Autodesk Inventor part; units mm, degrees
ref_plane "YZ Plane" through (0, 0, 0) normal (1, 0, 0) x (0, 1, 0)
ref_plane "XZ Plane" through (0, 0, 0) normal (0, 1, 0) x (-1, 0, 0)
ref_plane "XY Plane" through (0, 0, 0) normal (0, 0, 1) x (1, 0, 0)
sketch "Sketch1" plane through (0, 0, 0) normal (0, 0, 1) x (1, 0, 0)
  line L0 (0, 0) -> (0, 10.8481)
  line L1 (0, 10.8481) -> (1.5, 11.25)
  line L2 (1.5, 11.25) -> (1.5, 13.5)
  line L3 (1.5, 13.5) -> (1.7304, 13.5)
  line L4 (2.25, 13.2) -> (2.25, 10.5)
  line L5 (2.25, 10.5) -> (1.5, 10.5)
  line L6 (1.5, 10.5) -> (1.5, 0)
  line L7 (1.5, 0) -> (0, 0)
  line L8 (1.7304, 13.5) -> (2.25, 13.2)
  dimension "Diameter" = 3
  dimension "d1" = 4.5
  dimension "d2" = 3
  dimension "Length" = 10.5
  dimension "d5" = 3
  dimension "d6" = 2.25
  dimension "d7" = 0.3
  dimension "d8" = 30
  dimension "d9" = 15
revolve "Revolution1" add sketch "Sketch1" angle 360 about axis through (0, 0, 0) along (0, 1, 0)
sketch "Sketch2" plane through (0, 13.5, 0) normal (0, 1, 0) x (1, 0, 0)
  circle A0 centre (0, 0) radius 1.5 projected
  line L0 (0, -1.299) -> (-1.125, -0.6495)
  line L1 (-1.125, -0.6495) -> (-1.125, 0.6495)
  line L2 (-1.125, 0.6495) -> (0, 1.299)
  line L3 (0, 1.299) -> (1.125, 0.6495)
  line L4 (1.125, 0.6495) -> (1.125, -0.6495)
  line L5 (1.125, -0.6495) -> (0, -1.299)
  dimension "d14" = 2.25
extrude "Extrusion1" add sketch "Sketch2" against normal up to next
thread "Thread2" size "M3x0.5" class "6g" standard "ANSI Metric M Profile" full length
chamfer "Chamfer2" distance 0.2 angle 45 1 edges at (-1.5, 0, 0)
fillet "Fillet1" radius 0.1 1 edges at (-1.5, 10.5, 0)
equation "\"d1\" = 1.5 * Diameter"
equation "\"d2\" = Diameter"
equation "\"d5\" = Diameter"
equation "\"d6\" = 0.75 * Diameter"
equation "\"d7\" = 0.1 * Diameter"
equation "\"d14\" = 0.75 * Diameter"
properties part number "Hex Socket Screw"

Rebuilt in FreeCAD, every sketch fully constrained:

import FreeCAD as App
import Part
import Sketcher
Q = App.Units.Quantity


def edges_at(feature, points):
    """Names of the edges that pass closest to the given points."""
    edges = feature.Shape.Edges
    near = lambda p: min(range(len(edges)), key=lambda i: edges[i].distToShape(Part.Vertex(*p))[0])
    return sorted({f"Edge{near(p) + 1}" for p in points})

doc = App.newDocument("Part")
body = doc.addObject("PartDesign::Body", "Body")

sketch1 = body.newObject("Sketcher::SketchObject", "Sketch")
sketch1.AttachmentSupport = (doc.getObject("XY_Plane"), [""])
sketch1.MapMode = "FlatFace"
sketch1.addGeometry([
    Part.LineSegment(App.Vector(0, 10.8481, 0), App.Vector(0, 0, 0)),
    Part.LineSegment(App.Vector(0, 0, 0), App.Vector(1.5, 0, 0)),
    Part.LineSegment(App.Vector(1.5, 0, 0), App.Vector(1.5, 10.5, 0)),
    Part.LineSegment(App.Vector(1.5, 10.5, 0), App.Vector(2.25, 10.5, 0)),
    Part.LineSegment(App.Vector(2.25, 10.5, 0), App.Vector(2.25, 13.2, 0)),
    Part.LineSegment(App.Vector(2.25, 13.2, 0), App.Vector(1.7304, 13.5, 0)),
    Part.LineSegment(App.Vector(1.7304, 13.5, 0), App.Vector(1.5, 13.5, 0)),
    Part.LineSegment(App.Vector(1.5, 13.5, 0), App.Vector(1.5, 11.25, 0)),
    Part.LineSegment(App.Vector(1.5, 11.25, 0), App.Vector(0, 10.8481, 0)),
], False)
sketch1.addConstraint([
    Sketcher.Constraint("Coincident", 0, 2, 1, 1),
    Sketcher.Constraint("Coincident", 1, 2, 2, 1),
    Sketcher.Constraint("Coincident", 2, 2, 3, 1),
    Sketcher.Constraint("Coincident", 3, 2, 4, 1),
    Sketcher.Constraint("Coincident", 4, 2, 5, 1),
    Sketcher.Constraint("Coincident", 5, 2, 6, 1),
    Sketcher.Constraint("Coincident", 6, 2, 7, 1),
    Sketcher.Constraint("Coincident", 7, 2, 8, 1),
    Sketcher.Constraint("Coincident", 8, 2, 0, 1),
    Sketcher.Constraint("Vertical", 0),
    Sketcher.Constraint("Horizontal", 1),
    Sketcher.Constraint("Vertical", 2),
    Sketcher.Constraint("Horizontal", 3),
    Sketcher.Constraint("Vertical", 4),
    Sketcher.Constraint("Horizontal", 6),
    Sketcher.Constraint("Vertical", 7),
    Sketcher.Constraint("Coincident", 0, 2, -1, 1),
    Sketcher.Constraint("Vertical", 2, 2, 6, 2),
    Sketcher.Constraint("DistanceY", 2, 1, 2, 2, Q("10.5 mm")),
    Sketcher.Constraint("DistanceY", 2, 2, 5, 2, Q("3 mm")),
    Sketcher.Constraint("DistanceY", 7, 2, 7, 1, Q("2.25 mm")),
    Sketcher.Constraint("DistanceY", 4, 2, 5, 2, Q("0.3 mm")),
    Sketcher.Constraint("DistanceX", -1, 1, 3, 2, Q("2.25 mm")),
    Sketcher.Constraint("Angle", 5, Q("149.9993 deg")),
    Sketcher.Constraint("Angle", 8, Q("-165.0008 deg")),
    Sketcher.Constraint("DistanceX", 1, 1, 1, 2, Q("1.5 mm")),
])
revolution = body.newObject("PartDesign::Revolution", "Revolution")
revolution.Profile = sketch1
revolution.ReferenceAxis = (sketch1, ["V_Axis"])
revolution.Angle = 360

sketch2 = body.newObject("Sketcher::SketchObject", "Sketch001")
sketch2.AttachmentSupport = (doc.getObject("XZ_Plane"), [""])
sketch2.MapMode = "FlatFace"
sketch2.AttachmentOffset = App.Placement(App.Vector(0, 0, -13.5), App.Rotation())
sketch2.addGeometry([
    Part.Circle(App.Vector(0, 0, 0), App.Vector(0, 0, 1), 1.5),
    Part.LineSegment(App.Vector(1.125, 0.6495, 0), App.Vector(0, 1.299, 0)),
    Part.LineSegment(App.Vector(0, 1.299, 0), App.Vector(-1.125, 0.6495, 0)),
    Part.LineSegment(App.Vector(-1.125, 0.6495, 0), App.Vector(-1.125, -0.6495, 0)),
    Part.LineSegment(App.Vector(-1.125, -0.6495, 0), App.Vector(0, -1.299, 0)),
    Part.LineSegment(App.Vector(0, -1.299, 0), App.Vector(1.125, -0.6495, 0)),
    Part.LineSegment(App.Vector(1.125, -0.6495, 0), App.Vector(1.125, 0.6495, 0)),
], False)
sketch2.addConstraint([
    Sketcher.Constraint("Coincident", 1, 2, 2, 1),
    Sketcher.Constraint("Coincident", 2, 2, 3, 1),
    Sketcher.Constraint("Coincident", 3, 2, 4, 1),
    Sketcher.Constraint("Coincident", 4, 2, 5, 1),
    Sketcher.Constraint("Coincident", 5, 2, 6, 1),
    Sketcher.Constraint("Coincident", 6, 2, 1, 1),
    Sketcher.Constraint("Vertical", 3),
    Sketcher.Constraint("Vertical", 6),
    Sketcher.Constraint("Coincident", 0, 3, -1, 1),
    Sketcher.Constraint("Symmetric", 1, 2, 4, 2, -1, 1),
    Sketcher.Constraint("Symmetric", 2, 2, 5, 2, -1, 1),
    Sketcher.Constraint("PointOnObject", 1, 2, -2),
    Sketcher.Constraint("Parallel", 1, 4),
    Sketcher.Constraint("Horizontal", 3, 2, 5, 2),
    Sketcher.Constraint("Diameter", 0, Q("3 mm")),
    Sketcher.Constraint("Angle", 1, Q("150.0007 deg")),
    Sketcher.Constraint("DistanceX", 3, 2, 5, 2, Q("2.25 mm")),
    Sketcher.Constraint("DistanceY", 3, 2, 3, 1, Q("1.299 mm")),
])
pad1 = body.newObject("PartDesign::Pad", "Pad")
pad1.Profile = sketch2
pad1.Type = "UpToFirst"
doc.recompute()

chamfer = body.newObject("PartDesign::Chamfer", "Chamfer")
chamfer.Base = (pad1, edges_at(pad1, [(-1.5, 0, 0)]))
chamfer.Size = 0.2
doc.recompute()

fillet = body.newObject("PartDesign::Fillet", "Fillet")
fillet.Base = (chamfer, edges_at(chamfer, [(-1.5, 10.5, 0)]))
fillet.Radius = 0.1

doc.recompute()
